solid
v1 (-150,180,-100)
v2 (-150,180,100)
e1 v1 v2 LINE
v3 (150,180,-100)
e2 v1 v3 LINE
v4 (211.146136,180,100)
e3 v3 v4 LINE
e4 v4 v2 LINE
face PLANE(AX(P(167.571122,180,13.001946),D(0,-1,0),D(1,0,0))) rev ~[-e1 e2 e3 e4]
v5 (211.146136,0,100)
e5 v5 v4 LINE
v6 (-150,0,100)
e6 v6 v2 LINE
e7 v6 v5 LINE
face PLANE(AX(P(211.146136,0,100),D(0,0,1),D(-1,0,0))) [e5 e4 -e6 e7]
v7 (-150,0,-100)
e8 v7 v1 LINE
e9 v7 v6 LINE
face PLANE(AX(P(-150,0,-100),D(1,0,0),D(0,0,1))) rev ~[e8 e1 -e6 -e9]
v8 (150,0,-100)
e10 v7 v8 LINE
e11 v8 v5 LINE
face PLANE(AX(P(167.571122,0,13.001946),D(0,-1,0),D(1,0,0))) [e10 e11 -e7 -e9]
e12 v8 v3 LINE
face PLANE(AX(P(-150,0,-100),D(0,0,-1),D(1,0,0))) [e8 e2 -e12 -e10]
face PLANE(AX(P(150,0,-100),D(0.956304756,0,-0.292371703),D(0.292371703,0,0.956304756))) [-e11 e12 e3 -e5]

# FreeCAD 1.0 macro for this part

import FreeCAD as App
import Part
import Sketcher
Q = App.Units.Quantity

doc = App.newDocument("Part")
params = doc.addObject("Spreadsheet::Sheet", "Params")
for row, (alias, value) in enumerate([
    ("sketch1_width", "300 mm"),
    ("sketch1_height", "200 mm"),
    ("pad1_length", "180 mm"),
    ("sketch2_height", "200 mm"),
    ("pad2_length", "180 mm"),
], start=1):
    params.set(f"A{row}", alias)
    params.set(f"B{row}", "=" + value)
    params.setAlias(f"B{row}", alias)

body = doc.addObject("PartDesign::Body", "Body")

sketch1 = body.newObject("Sketcher::SketchObject", "Sketch")
sketch1.AttachmentSupport = (doc.getObject("XZ_Plane"), [""])
sketch1.MapMode = "FlatFace"
sketch1.addGeometry([
    Part.LineSegment(App.Vector(-150, 100, 0), App.Vector(-150, -100, 0)),
    Part.LineSegment(App.Vector(-150, -100, 0), App.Vector(150, -100, 0)),
    Part.LineSegment(App.Vector(150, -100, 0), App.Vector(150, 100, 0)),
    Part.LineSegment(App.Vector(150, 100, 0), App.Vector(-150, 100, 0)),
], False)
sketch1.addConstraint([
    Sketcher.Constraint("Coincident", 0, 2, 1, 1),
    Sketcher.Constraint("Coincident", 1, 2, 2, 1),
    Sketcher.Constraint("Coincident", 2, 2, 3, 1),
    Sketcher.Constraint("Coincident", 3, 2, 0, 1),
    Sketcher.Constraint("Vertical", 0),
    Sketcher.Constraint("Horizontal", 1),
    Sketcher.Constraint("Vertical", 2),
    Sketcher.Constraint("Horizontal", 3),
    Sketcher.Constraint("Symmetric", 0, 2, 2, 2, -1, 1),
    Sketcher.Constraint("DistanceX", 1, 1, 1, 2, 300.0),
    Sketcher.Constraint("DistanceY", 0, 2, 0, 1, 200.0),
])
sketch1.setExpression("Constraints[9]", "Params.sketch1_width")
sketch1.setExpression("Constraints[10]", "Params.sketch1_height")
pad1 = body.newObject("PartDesign::Pad", "Pad")
pad1.Profile = sketch1
pad1.setExpression("Length", "Params.pad1_length")
pad1.Reversed = True

sketch2 = body.newObject("Sketcher::SketchObject", "Sketch001")
sketch2.AttachmentSupport = (doc.getObject("XZ_Plane"), [""])
sketch2.MapMode = "FlatFace"
sketch2.addGeometry([
    Part.LineSegment(App.Vector(150, 100, 0), App.Vector(150, -100, 0)),
    Part.LineSegment(App.Vector(150, -100, 0), App.Vector(211.146136, 100, 0)),
    Part.LineSegment(App.Vector(211.146136, 100, 0), App.Vector(150, 100, 0)),
], False)
sketch2.addConstraint([
    Sketcher.Constraint("Coincident", 0, 2, 1, 1),
    Sketcher.Constraint("Coincident", 1, 2, 2, 1),
    Sketcher.Constraint("Coincident", 2, 2, 0, 1),
    Sketcher.Constraint("Vertical", 0),
    Sketcher.Constraint("Horizontal", 2),
    Sketcher.Constraint("DistanceY", 0, 2, 0, 1, 200.0),
    Sketcher.Constraint("Angle", 1, Q("73 deg")),
    Sketcher.Constraint("DistanceX", -1, 1, 0, 2, 150.0),
    Sketcher.Constraint("DistanceY", 0, 2, -1, 1, 100.0),
])
sketch2.setExpression("Constraints[5]", "Params.sketch2_height")
pad2 = body.newObject("PartDesign::Pad", "Pad001")
pad2.Profile = sketch2
pad2.setExpression("Length", "Params.pad2_length")
pad2.Reversed = True

doc.recompute()
